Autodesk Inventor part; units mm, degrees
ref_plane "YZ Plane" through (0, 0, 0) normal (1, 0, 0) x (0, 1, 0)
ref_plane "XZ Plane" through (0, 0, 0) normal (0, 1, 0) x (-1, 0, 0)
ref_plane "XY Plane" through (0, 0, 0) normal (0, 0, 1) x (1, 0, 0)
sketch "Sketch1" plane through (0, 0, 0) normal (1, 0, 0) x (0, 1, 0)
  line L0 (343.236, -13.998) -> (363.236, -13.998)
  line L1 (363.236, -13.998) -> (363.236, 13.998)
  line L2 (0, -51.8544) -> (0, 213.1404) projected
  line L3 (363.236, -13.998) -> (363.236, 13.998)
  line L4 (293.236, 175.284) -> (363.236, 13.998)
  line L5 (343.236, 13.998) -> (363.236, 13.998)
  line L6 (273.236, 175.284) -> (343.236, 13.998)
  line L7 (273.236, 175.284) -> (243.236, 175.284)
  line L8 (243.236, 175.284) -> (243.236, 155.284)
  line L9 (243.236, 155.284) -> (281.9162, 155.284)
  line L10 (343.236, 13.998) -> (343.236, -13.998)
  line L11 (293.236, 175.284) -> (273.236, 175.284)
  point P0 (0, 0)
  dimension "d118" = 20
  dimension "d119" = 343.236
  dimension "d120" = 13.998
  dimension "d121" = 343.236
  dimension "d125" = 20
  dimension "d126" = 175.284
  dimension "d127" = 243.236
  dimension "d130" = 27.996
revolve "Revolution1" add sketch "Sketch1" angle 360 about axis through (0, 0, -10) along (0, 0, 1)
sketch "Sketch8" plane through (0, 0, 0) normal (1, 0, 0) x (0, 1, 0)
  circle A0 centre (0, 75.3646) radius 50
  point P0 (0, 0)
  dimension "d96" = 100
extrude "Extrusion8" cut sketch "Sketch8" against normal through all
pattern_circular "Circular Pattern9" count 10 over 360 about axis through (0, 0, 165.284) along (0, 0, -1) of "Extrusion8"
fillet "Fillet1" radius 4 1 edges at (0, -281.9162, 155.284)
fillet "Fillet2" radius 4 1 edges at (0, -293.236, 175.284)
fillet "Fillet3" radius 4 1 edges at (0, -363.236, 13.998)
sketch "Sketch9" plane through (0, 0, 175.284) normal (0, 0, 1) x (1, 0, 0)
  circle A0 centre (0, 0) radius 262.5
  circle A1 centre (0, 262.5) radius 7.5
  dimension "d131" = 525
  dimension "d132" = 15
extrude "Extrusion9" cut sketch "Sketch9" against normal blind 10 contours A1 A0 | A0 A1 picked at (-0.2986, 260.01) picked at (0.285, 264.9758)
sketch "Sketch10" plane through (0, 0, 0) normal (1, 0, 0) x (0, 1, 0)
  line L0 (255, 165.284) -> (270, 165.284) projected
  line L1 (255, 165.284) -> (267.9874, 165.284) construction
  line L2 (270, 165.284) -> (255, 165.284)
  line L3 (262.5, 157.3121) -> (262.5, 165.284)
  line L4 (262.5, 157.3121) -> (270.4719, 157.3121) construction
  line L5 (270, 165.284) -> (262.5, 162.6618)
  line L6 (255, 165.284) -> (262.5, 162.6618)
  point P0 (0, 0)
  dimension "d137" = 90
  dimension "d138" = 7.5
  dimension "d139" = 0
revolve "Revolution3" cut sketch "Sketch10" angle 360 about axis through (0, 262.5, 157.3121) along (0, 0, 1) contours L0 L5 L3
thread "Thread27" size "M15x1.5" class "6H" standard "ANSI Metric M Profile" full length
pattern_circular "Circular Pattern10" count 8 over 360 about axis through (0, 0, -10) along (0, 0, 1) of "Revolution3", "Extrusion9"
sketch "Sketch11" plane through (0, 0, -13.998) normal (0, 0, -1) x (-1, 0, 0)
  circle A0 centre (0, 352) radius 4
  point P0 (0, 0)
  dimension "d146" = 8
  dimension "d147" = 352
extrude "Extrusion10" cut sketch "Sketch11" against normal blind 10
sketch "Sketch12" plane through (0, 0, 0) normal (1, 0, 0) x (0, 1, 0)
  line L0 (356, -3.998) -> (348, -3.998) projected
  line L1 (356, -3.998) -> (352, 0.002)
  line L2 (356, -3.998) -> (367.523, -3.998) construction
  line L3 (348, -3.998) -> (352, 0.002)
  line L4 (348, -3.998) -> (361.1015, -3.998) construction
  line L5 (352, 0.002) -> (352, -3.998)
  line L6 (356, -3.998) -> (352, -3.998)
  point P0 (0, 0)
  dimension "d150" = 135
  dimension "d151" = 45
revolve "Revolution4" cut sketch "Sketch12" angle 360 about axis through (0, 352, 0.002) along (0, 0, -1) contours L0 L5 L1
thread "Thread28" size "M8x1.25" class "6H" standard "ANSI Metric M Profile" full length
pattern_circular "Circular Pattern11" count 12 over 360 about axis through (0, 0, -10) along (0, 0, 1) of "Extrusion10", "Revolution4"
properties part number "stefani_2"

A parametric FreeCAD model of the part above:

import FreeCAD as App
import Part
import Sketcher
from FreeCAD import Vector
Q = App.Units.Quantity


def edges_at(feature, points):
    """Names of the edges that pass closest to the given points."""
    edges = feature.Shape.Edges
    near = lambda p: min(range(len(edges)), key=lambda i: edges[i].distToShape(Part.Vertex(*p))[0])
    return sorted({f"Edge{near(p) + 1}" for p in points})


def add_polygon(sketch, points):
    """Adds a closed chain of lines whose ends are joined by coincident constraints."""
    first, n = sketch.GeometryCount, len(points)
    for a, b in zip(points, points[1:] + points[:1]):
        sketch.addGeometry(Part.LineSegment(App.Vector(*a, 0), App.Vector(*b, 0)), False)
    for i in range(n):
        sketch.addConstraint(Sketcher.Constraint("Coincident", first + i, 2, first + (i + 1) % n, 1))

doc = App.newDocument("Part")
body = doc.addObject("PartDesign::Body", "Body")

sketch1 = body.newObject("Sketcher::SketchObject", "Sketch")
sketch1.AttachmentSupport = (doc.getObject("YZ_Plane"), [""])
sketch1.MapMode = "FlatFace"
add_polygon(sketch1, [(343, 14), (343, -14), (363, -14), (363, 14), (293, 175), (243, 175), (243, 155), (282, 155)])
sketch1.addConstraint([
    Sketcher.Constraint("Vertical", 0),
    Sketcher.Constraint("Horizontal", 1),
    Sketcher.Constraint("Vertical", 2),
    Sketcher.Constraint("Horizontal", 4),
    Sketcher.Constraint("Vertical", 5),
    Sketcher.Constraint("Horizontal", 6),
    Sketcher.Constraint("Parallel", 3, 7),
    Sketcher.Constraint("Horizontal", 2, 2, 7, 2),
    Sketcher.Constraint("Equal", 1, 5),
    Sketcher.Constraint("DistanceX", 1, 1, 1, 2, Q("20 mm")),
    Sketcher.Constraint("DistanceX", 4, 2, 4, 1, Q("50 mm")),
    Sketcher.Constraint("DistanceY", 0, 2, 0, 1, Q("27.996 mm")),
    Sketcher.Constraint("DistanceX", -1, 1, 0, 2, Q("343.236 mm")),
    Sketcher.Constraint("DistanceY", 0, 2, -1, 1, Q("13.998 mm")),
    Sketcher.Constraint("DistanceY", -1, 1, 3, 2, Q("175.284 mm")),
    Sketcher.Constraint("DistanceX", -1, 1, 4, 2, Q("243.236 mm")),
])
revolution = body.newObject("PartDesign::Revolution", "Revolution")
revolution.Profile = sketch1
revolution.ReferenceAxis = (sketch1, ["V_Axis"])
revolution.Angle = 360

sketch2 = body.newObject("Sketcher::SketchObject", "Sketch001")
sketch2.AttachmentSupport = (doc.getObject("YZ_Plane"), [""])
sketch2.MapMode = "FlatFace"
sketch2.addGeometry(Part.Circle(Vector(0, 75, 0), Vector(0, 0, 1), 50), False)
sketch2.addConstraint([
    Sketcher.Constraint("PointOnObject", 0, 3, -2),
    Sketcher.Constraint("Diameter", 0, Q("100 mm")),
    Sketcher.Constraint("DistanceY", -1, 1, 0, 3, Q("75.3646 mm")),
])
pocket1 = body.newObject("PartDesign::Pocket", "Pocket")
pocket1.Profile = sketch2
pocket1.Type = "ThroughAll"
doc.recompute()

polarpattern = body.newObject("PartDesign::PolarPattern", "PolarPattern")
polarpattern.Originals = [pocket1]
polarpattern.Axis = (doc.getObject("Z_Axis"), [""])
polarpattern.Angle = 360
polarpattern.Occurrences = 10
body.Tip = polarpattern
doc.recompute()

fillet = body.newObject("PartDesign::Fillet", "Fillet")
fillet.Base = (polarpattern, edges_at(polarpattern, [(0, -281.916, 155.284)]))
fillet.Radius = 4
doc.recompute()

fillet2 = body.newObject("PartDesign::Fillet", "Fillet001")
fillet2.Base = (fillet, edges_at(fillet, [(0, -293.236, 175.284)]))
fillet2.Radius = 4
doc.recompute()

fillet3 = body.newObject("PartDesign::Fillet", "Fillet002")
fillet3.Base = (fillet2, edges_at(fillet2, [(0, -363.236, 13.998)]))
fillet3.Radius = 4

sketch3 = body.newObject("Sketcher::SketchObject", "Sketch002")
sketch3.AttachmentSupport = (doc.getObject("XY_Plane"), [""])
sketch3.MapMode = "FlatFace"
sketch3.AttachmentOffset = App.Placement(Vector(0, 0, 175.284), App.Rotation())
sketch3.addGeometry(Part.Circle(Vector(0, 262, 0), Vector(0, 0, 1), 8), False)
sketch3.addConstraint([
    Sketcher.Constraint("PointOnObject", 0, 3, -2),
    Sketcher.Constraint("Diameter", 0, Q("15 mm")),
    Sketcher.Constraint("DistanceY", -1, 1, 0, 3, Q("262.5 mm")),
])
pocket2 = body.newObject("PartDesign::Pocket", "Pocket001")
pocket2.Profile = sketch3
pocket2.Length = 10

sketch4 = body.newObject("Sketcher::SketchObject", "Sketch003")
sketch4.AttachmentSupport = (doc.getObject("YZ_Plane"), [""])
sketch4.MapMode = "FlatFace"
add_polygon(sketch4, [(270, 165.3), (262.5, 165.3), (262.5, 162.7)])
sketch4.addGeometry(Part.LineSegment(Vector(262.5, 162.7, 0), Vector(262.5, 165.3, 0)), True)
sketch4.addConstraint([
    Sketcher.Constraint("Horizontal", 0),
    Sketcher.Constraint("Vertical", 1),
    Sketcher.Constraint("Vertical", 3),
    Sketcher.Constraint("Coincident", 3, 1, 1, 2),
    Sketcher.Constraint("Horizontal", 2, 2, 3, 2),
    Sketcher.Constraint("DistanceX", 0, 2, 0, 1, Q("7.5 mm")),
    Sketcher.Constraint("DistanceX", -1, 1, 2, 2, Q("270 mm")),
    Sketcher.Constraint("Angle", 2, Q("19.271 deg")),
    Sketcher.Constraint("DistanceY", -1, 1, 0, 2, Q("165.284 mm")),
])
groove = body.newObject("PartDesign::Groove", "Groove")
groove.Profile = sketch4
groove.ReferenceAxis = (sketch4, ["Axis0"])
groove.Angle = 360
doc.recompute()

polarpattern2 = body.newObject("PartDesign::PolarPattern", "PolarPattern001")
polarpattern2.Originals = [groove, pocket2]
polarpattern2.Axis = (doc.getObject("Z_Axis"), [""])
polarpattern2.Angle = 360
polarpattern2.Occurrences = 8
body.Tip = polarpattern2

sketch5 = body.newObject("Sketcher::SketchObject", "Sketch004")
sketch5.AttachmentSupport = (doc.getObject("XY_Plane"), [""])
sketch5.MapMode = "FlatFace"
sketch5.AttachmentOffset = App.Placement(Vector(0, 0, -13.998), App.Rotation())
sketch5.addGeometry(Part.Circle(Vector(0, 352, 0), Vector(0, 0, 1), 4), False)
sketch5.addConstraint([
    Sketcher.Constraint("PointOnObject", 0, 3, -2),
    Sketcher.Constraint("Diameter", 0, Q("8 mm")),
    Sketcher.Constraint("DistanceY", -1, 1, 0, 3, Q("352 mm")),
])
pocket3 = body.newObject("PartDesign::Pocket", "Pocket002")
pocket3.Profile = sketch5
pocket3.Length = 10
pocket3.Reversed = True

sketch6 = body.newObject("Sketcher::SketchObject", "Sketch005")
sketch6.AttachmentSupport = (doc.getObject("YZ_Plane"), [""])
sketch6.MapMode = "FlatFace"
add_polygon(sketch6, [(352, -4), (356, -4), (352, 0)])
sketch6.addGeometry(Part.LineSegment(Vector(352, 0, 0), Vector(352, -4, 0)), True)
sketch6.addConstraint([
    Sketcher.Constraint("Horizontal", 0),
    Sketcher.Constraint("Vertical", 2),
    Sketcher.Constraint("Vertical", 3),
    Sketcher.Constraint("Coincident", 3, 1, 1, 2),
    Sketcher.Constraint("Horizontal", 0, 2, 3, 2),
    Sketcher.Constraint("Equal", 0, 2),
    Sketcher.Constraint("DistanceX", 0, 1, 0, 2, Q("4 mm")),
    Sketcher.Constraint("DistanceX", -1, 1, 0, 2, Q("356 mm")),
    Sketcher.Constraint("DistanceY", 0, 2, -1, 1, Q("3.998 mm")),
])
groove2 = body.newObject("PartDesign::Groove", "Groove001")
groove2.Profile = sketch6
groove2.ReferenceAxis = (sketch6, ["Axis0"])
groove2.Angle = 360
doc.recompute()

polarpattern3 = body.newObject("PartDesign::PolarPattern", "PolarPattern002")
polarpattern3.Originals = [pocket3, groove2]
polarpattern3.Axis = (doc.getObject("Z_Axis"), [""])
polarpattern3.Angle = 360
polarpattern3.Occurrences = 12
body.Tip = polarpattern3

doc.recompute()
